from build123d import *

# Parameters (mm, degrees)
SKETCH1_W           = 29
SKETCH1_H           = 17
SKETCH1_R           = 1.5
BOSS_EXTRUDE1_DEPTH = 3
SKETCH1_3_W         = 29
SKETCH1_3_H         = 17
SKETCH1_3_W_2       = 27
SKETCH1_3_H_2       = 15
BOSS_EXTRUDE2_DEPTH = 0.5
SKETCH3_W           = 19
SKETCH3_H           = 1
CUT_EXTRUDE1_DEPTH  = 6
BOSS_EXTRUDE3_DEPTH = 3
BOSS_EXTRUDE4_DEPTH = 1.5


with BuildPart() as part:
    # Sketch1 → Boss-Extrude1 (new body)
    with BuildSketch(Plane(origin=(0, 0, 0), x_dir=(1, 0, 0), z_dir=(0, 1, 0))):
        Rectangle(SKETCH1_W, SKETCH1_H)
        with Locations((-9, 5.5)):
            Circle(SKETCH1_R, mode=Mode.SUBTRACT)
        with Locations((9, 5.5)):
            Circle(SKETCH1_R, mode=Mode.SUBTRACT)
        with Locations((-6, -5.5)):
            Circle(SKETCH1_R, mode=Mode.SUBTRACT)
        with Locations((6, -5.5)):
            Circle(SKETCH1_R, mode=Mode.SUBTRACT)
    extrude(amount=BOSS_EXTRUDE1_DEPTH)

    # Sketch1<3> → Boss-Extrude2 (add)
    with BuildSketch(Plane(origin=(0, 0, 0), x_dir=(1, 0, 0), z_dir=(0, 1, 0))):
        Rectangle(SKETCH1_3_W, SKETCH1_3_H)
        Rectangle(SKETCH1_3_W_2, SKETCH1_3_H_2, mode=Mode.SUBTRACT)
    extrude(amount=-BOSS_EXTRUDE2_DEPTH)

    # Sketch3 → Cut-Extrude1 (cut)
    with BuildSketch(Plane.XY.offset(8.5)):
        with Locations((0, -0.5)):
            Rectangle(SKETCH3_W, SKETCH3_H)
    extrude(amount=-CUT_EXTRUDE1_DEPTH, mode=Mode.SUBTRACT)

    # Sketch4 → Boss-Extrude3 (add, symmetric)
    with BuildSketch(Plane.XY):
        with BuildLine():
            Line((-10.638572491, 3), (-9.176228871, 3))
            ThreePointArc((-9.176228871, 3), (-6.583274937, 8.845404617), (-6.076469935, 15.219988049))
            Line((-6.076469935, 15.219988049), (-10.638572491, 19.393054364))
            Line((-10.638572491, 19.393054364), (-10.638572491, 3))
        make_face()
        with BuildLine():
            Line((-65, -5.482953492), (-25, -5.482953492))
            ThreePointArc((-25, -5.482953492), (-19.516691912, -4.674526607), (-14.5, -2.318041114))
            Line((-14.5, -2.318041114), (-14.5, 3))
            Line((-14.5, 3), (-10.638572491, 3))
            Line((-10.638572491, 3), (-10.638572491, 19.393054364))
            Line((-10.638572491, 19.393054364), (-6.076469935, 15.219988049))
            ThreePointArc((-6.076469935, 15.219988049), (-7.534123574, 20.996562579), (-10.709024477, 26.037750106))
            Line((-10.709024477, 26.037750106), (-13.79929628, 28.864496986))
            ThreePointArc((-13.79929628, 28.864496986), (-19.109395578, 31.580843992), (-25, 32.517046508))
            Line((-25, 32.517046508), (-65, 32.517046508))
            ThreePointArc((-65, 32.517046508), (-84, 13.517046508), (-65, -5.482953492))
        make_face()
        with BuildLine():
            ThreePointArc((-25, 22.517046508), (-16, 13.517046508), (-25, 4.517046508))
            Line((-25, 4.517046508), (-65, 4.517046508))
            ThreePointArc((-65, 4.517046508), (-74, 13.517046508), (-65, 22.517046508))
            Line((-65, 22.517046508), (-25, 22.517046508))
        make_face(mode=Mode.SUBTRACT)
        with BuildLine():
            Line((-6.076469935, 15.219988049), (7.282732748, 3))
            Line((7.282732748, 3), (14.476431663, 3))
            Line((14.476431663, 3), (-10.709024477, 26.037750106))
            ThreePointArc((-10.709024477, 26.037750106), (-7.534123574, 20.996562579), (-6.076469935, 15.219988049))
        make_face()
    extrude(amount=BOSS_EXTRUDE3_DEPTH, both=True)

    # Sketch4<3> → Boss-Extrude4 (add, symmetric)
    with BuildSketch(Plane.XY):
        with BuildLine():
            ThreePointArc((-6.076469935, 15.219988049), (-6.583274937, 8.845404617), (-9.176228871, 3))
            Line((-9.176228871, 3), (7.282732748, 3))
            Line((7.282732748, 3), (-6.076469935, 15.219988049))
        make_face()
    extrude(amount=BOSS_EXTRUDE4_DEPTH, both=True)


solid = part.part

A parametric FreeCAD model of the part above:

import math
import FreeCAD as App
import Part
import Sketcher
Q = App.Units.Quantity


def add_polygon(sketch, points):
    """Adds a closed chain of lines whose ends are joined by coincident constraints."""
    first, n = sketch.GeometryCount, len(points)
    for a, b in zip(points, points[1:] + points[:1]):
        sketch.addGeometry(Part.LineSegment(App.Vector(*a, 0), App.Vector(*b, 0)), False)
    for i in range(n):
        sketch.addConstraint(Sketcher.Constraint("Coincident", first + i, 2, first + (i + 1) % n, 1))

doc = App.newDocument("Part")
params = doc.addObject("Spreadsheet::Sheet", "Params")
for row, (alias, value) in enumerate([
    ("sketch1_diameter", "3 mm"),
    ("sketch1_width", "29 mm"),
    ("sketch1_height", "17 mm"),
    ("pad1_length", "3 mm"),
    ("sketch2_width", "29 mm"),
    ("sketch2_width2", "27 mm"),
    ("sketch2_height", "17 mm"),
    ("sketch2_height2", "15 mm"),
    ("pad2_length", "0.5 mm"),
    ("sketch3_width", "19 mm"),
    ("sketch3_height", "1 mm"),
    ("pocket1_length", "6 mm"),
    ("sketch4_radius", "19 mm"),
    ("sketch4_radius2", "9 mm"),
    ("sketch4_width", "40 mm"),
    ("pad3_length", "6 mm"),
    ("sketch5_radius", "19 mm"),
    ("pad4_length", "3 mm"),
], start=1):
    params.set(f"A{row}", alias)
    params.set(f"B{row}", "=" + value)
    params.setAlias(f"B{row}", alias)

body = doc.addObject("PartDesign::Body", "Body")

# Sketch on XZ plane
sketch1 = doc.addObject("Sketcher::SketchObject", "Sketch")
body.addObject(sketch1)
sketch1.AttachmentSupport = (doc.XZ_Plane, [""])
sketch1.MapMode = "FlatFace"
add_polygon(sketch1, [(-14.5, -8.5), (-14.5, 8.5), (14.5, 8.5), (14.5, -8.5)])  # lines 0-3
sketch1.addGeometry(Part.Circle(App.Vector(-6, 5.5, 0), App.Vector(0, 0, 1), 1.5), False)  # 4
sketch1.addGeometry(Part.Circle(App.Vector(6, 5.5, 0), App.Vector(0, 0, 1), 1.5), False)  # 5
sketch1.addGeometry(Part.Circle(App.Vector(-9, -5.5, 0), App.Vector(0, 0, 1), 1.5), False)  # 6
sketch1.addGeometry(Part.Circle(App.Vector(9, -5.5, 0), App.Vector(0, 0, 1), 1.5), False)  # 7
sketch1.addConstraint([
    Sketcher.Constraint("Vertical", 0),
    Sketcher.Constraint("Horizontal", 1),
    Sketcher.Constraint("Vertical", 2),
    Sketcher.Constraint("Horizontal", 3),
    Sketcher.Constraint("Equal", 4, 5),
    Sketcher.Constraint("Equal", 5, 6),
    Sketcher.Constraint("Equal", 6, 7),
    Sketcher.Constraint("Symmetric", 0, 2, 2, 2, -1, 1),
    Sketcher.Constraint("Symmetric", 4, 3, 5, 3, -2),
    Sketcher.Constraint("Symmetric", 6, 3, 7, 3, -2),
    Sketcher.Constraint("Diameter", 4, Q("3 mm")),
    Sketcher.Constraint("DistanceX", 1, 1, 1, 2, Q("29 mm")),
    Sketcher.Constraint("DistanceY", 0, 1, 0, 2, Q("17 mm")),
    Sketcher.Constraint("DistanceX", 4, 3, -1, 1, Q("6 mm")),
    Sketcher.Constraint("DistanceX", 6, 3, -1, 1, Q("9 mm")),
    Sketcher.Constraint("DistanceY", 6, 3, 4, 3, Q("11 mm")),
    Sketcher.Constraint("DistanceY", 4, 3, 0, 2, Q("3 mm")),
])
sketch1.setExpression("Constraints[14]", "Params.sketch1_diameter")
sketch1.setExpression("Constraints[15]", "Params.sketch1_width")
sketch1.setExpression("Constraints[16]", "Params.sketch1_height")
pad1 = doc.addObject("PartDesign::Pad", "Pad")
body.addObject(pad1)
pad1.Profile = sketch1
pad1.setExpression("Length", "Params.pad1_length")
pad1.Reversed = True

# Sketch on XZ plane
sketch2 = doc.addObject("Sketcher::SketchObject", "Sketch001")
body.addObject(sketch2)
sketch2.AttachmentSupport = (doc.XZ_Plane, [""])
sketch2.MapMode = "FlatFace"
add_polygon(sketch2, [(-14.5, -8.5), (-14.5, 8.5), (14.5, 8.5), (14.5, -8.5)])  # lines 0-3
add_polygon(sketch2, [(13.5, 7.5), (-13.5, 7.5), (-13.5, -7.5), (13.5, -7.5)])  # lines 4-7
sketch2.addConstraint([
    Sketcher.Constraint("Vertical", 0),
    Sketcher.Constraint("Horizontal", 1),
    Sketcher.Constraint("Vertical", 2),
    Sketcher.Constraint("Horizontal", 3),
    Sketcher.Constraint("Horizontal", 4),
    Sketcher.Constraint("Vertical", 5),
    Sketcher.Constraint("Horizontal", 6),
    Sketcher.Constraint("Vertical", 7),
    Sketcher.Constraint("Symmetric", 0, 2, 2, 2, -1, 1),
    Sketcher.Constraint("Symmetric", 4, 2, 6, 2, -1, 1),
    Sketcher.Constraint("DistanceX", 1, 1, 1, 2, Q("29 mm")),
    Sketcher.Constraint("DistanceX", 4, 2, 4, 1, Q("27 mm")),
    Sketcher.Constraint("DistanceY", 0, 1, 0, 2, Q("17 mm")),
    Sketcher.Constraint("DistanceY", 5, 2, 5, 1, Q("15 mm")),
])
sketch2.setExpression("Constraints[18]", "Params.sketch2_width")
sketch2.setExpression("Constraints[19]", "Params.sketch2_width2")
sketch2.setExpression("Constraints[20]", "Params.sketch2_height")
sketch2.setExpression("Constraints[21]", "Params.sketch2_height2")
pad2 = doc.addObject("PartDesign::Pad", "Pad001")
body.addObject(pad2)
pad2.Profile = sketch2
pad2.setExpression("Length", "Params.pad2_length")

# Sketch on XY plane
sketch3 = doc.addObject("Sketcher::SketchObject", "Sketch002")
body.addObject(sketch3)
sketch3.AttachmentSupport = (doc.XY_Plane, [""])
sketch3.MapMode = "FlatFace"
sketch3.AttachmentOffset = App.Placement(App.Vector(0, 0, 8.5), App.Rotation())
add_polygon(sketch3, [(-9.5, 0), (-9.5, -1), (9.5, -1), (9.5, 0)])  # lines 0-3
sketch3.addConstraint([
    Sketcher.Constraint("Vertical", 0),
    Sketcher.Constraint("Horizontal", 1),
    Sketcher.Constraint("Vertical", 2),
    Sketcher.Constraint("Horizontal", 3),
    Sketcher.Constraint("Symmetric", 2, 2, 3, 2, -1, 1),
    Sketcher.Constraint("DistanceX", 1, 1, 1, 2, Q("19 mm")),
    Sketcher.Constraint("DistanceY", 0, 2, 0, 1, Q("1 mm")),
])
sketch3.setExpression("Constraints[9]", "Params.sketch3_width")
sketch3.setExpression("Constraints[10]", "Params.sketch3_height")
pocket1 = doc.addObject("PartDesign::Pocket", "Pocket")
body.addObject(pocket1)
pocket1.Profile = sketch3
pocket1.setExpression("Length", "Params.pocket1_length")

# Sketch on XY plane
sketch4 = doc.addObject("Sketcher::SketchObject", "Sketch003")
body.addObject(sketch4)
sketch4.AttachmentSupport = (doc.XY_Plane, [""])
sketch4.MapMode = "FlatFace"
sketch4.addGeometry([
    Part.ArcOfCircle(Part.Circle(App.Vector(-25, 13.517047, 0), App.Vector(0, 0, 1), 19), math.radians(-33.609439), math.radians(5.142235)),  # 0
    Part.LineSegment(App.Vector(-6.07647, 15.219988, 0), App.Vector(7.282733, 3, 0)),  # 1
    Part.LineSegment(App.Vector(7.282733, 3, 0), App.Vector(14.476432, 3, 0)),  # 2
    Part.LineSegment(App.Vector(14.476432, 3, 0), App.Vector(-10.709024, 26.03775, 0)),  # 3
    Part.LineSegment(App.Vector(-10.709024, 26.03775, 0), App.Vector(-13.799296, 28.864497, 0)),  # 4
    Part.ArcOfCircle(Part.Circle(App.Vector(-25, 13.517047, 0), App.Vector(0, 0, 1), 19), math.radians(53.877705), math.radians(90)),  # 5
    Part.LineSegment(App.Vector(-25, 32.517047, 0), App.Vector(-65, 32.517047, 0)),  # 6
    Part.ArcOfCircle(Part.Circle(App.Vector(-65, 13.517047, 0), App.Vector(0, 0, 1), 19), math.radians(90), math.radians(270)),  # 7
    Part.LineSegment(App.Vector(-65, -5.482953, 0), App.Vector(-25, -5.482953, 0)),  # 8
    Part.ArcOfCircle(Part.Circle(App.Vector(-25, 13.517047, 0), App.Vector(0, 0, 1), 19), math.radians(-90), math.radians(-56.452262)),  # 9
    Part.LineSegment(App.Vector(-14.5, -2.318041, 0), App.Vector(-14.5, 3, 0)),  # 10
    Part.LineSegment(App.Vector(-14.5, 3, 0), App.Vector(-9.176229, 3, 0)),  # 11
    Part.LineSegment(App.Vector(-65, 22.517047, 0), App.Vector(-25, 22.517047, 0)),  # 12
    Part.ArcOfCircle(Part.Circle(App.Vector(-25, 13.517047, 0), App.Vector(0, 0, 1), 9), math.radians(-90), math.radians(90)),  # 13
    Part.LineSegment(App.Vector(-25, 4.517047, 0), App.Vector(-65, 4.517047, 0)),  # 14
    Part.ArcOfCircle(Part.Circle(App.Vector(-65, 13.517047, 0), App.Vector(0, 0, 1), 9), math.radians(90), math.radians(270)),  # 15
], False)
sketch4.addConstraint([
    Sketcher.Constraint("Coincident", 0, 2, 1, 1),
    Sketcher.Constraint("Coincident", 1, 2, 2, 1),
    Sketcher.Constraint("Coincident", 2, 2, 3, 1),
    Sketcher.Constraint("Coincident", 3, 2, 4, 1),
    Sketcher.Constraint("Coincident", 4, 2, 5, 1),
    Sketcher.Constraint("Tangent", 5, 2, 6, 1),
    Sketcher.Constraint("Tangent", 6, 2, 7, 1),
    Sketcher.Constraint("Tangent", 7, 2, 8, 1),
    Sketcher.Constraint("Tangent", 8, 2, 9, 1),
    Sketcher.Constraint("Coincident", 9, 2, 10, 1),
    Sketcher.Constraint("Coincident", 10, 2, 11, 1),
    Sketcher.Constraint("Coincident", 11, 2, 0, 1),
    Sketcher.Constraint("Tangent", 12, 2, 13, 2),
    Sketcher.Constraint("Tangent", 13, 1, 14, 1),
    Sketcher.Constraint("Tangent", 14, 2, 15, 2),
    Sketcher.Constraint("Tangent", 15, 1, 12, 1),
    Sketcher.Constraint("Horizontal", 2),
    Sketcher.Constraint("Horizontal", 6),
    Sketcher.Constraint("Horizontal", 8),
    Sketcher.Constraint("Vertical", 10),
    Sketcher.Constraint("Horizontal", 11),
    Sketcher.Constraint("Horizontal", 12),
    Sketcher.Constraint("Horizontal", 14),
    Sketcher.Constraint("Coincident", 5, 3, 0, 3),
    Sketcher.Constraint("Coincident", 9, 3, 0, 3),
    Sketcher.Constraint("Coincident", 13, 3, 0, 3),
    Sketcher.Constraint("Coincident", 15, 3, 7, 3),
    Sketcher.Constraint("Equal", 0, 5),
    Sketcher.Constraint("Parallel", 1, 3),
    Sketcher.Constraint("Parallel", 3, 4),
    Sketcher.Constraint("Horizontal", 2, 2, 10, 2),
    Sketcher.Constraint("Radius", 0, Q("19 mm")),
    Sketcher.Constraint("Radius", 13, Q("9 mm")),
    Sketcher.Constraint("DistanceX", 6, 2, 6, 1, Q("40 mm")),
    Sketcher.Constraint("DistanceX", 0, 3, -1, 1, Q("25 mm")),
    Sketcher.Constraint("DistanceY", -1, 1, 1, 2, Q("3 mm")),
    Sketcher.Constraint("DistanceX", 9, 2, -1, 1, Q("14.5 mm")),
    Sketcher.Constraint("DistanceX", 2, 1, 2, 2, Q("7.193699 mm")),
    Sketcher.Constraint("DistanceX", 11, 1, 11, 2, Q("5.323771 mm")),
    Sketcher.Constraint("DistanceX", 0, 2, 2, 2, Q("20.552902 mm")),
    Sketcher.Constraint("Distance", 1, Q("18.105149 mm")),
    Sketcher.Constraint("Distance", 4, Q("4.188111 mm")),
])
sketch4.setExpression("Constraints[31]", "Params.sketch4_radius")
sketch4.setExpression("Constraints[32]", "Params.sketch4_radius2")
sketch4.setExpression("Constraints[33]", "Params.sketch4_width")
pad3 = doc.addObject("PartDesign::Pad", "Pad002")
body.addObject(pad3)
pad3.Profile = sketch4
pad3.setExpression("Length", "Params.pad3_length")
pad3.Midplane = True

# Sketch on XY plane
sketch5 = doc.addObject("Sketcher::SketchObject", "Sketch004")
body.addObject(sketch5)
sketch5.AttachmentSupport = (doc.XY_Plane, [""])
sketch5.MapMode = "FlatFace"
sketch5.addGeometry([
    Part.ArcOfCircle(Part.Circle(App.Vector(-25, 13.517047, 0), App.Vector(0, 0, 1), 19), math.radians(-33.609439), math.radians(5.142235)),
    Part.LineSegment(App.Vector(-9.176229, 3, 0), App.Vector(7.282733, 3, 0)),
    Part.LineSegment(App.Vector(7.282733, 3, 0), App.Vector(-6.07647, 15.219988, 0)),
], False)
sketch5.addConstraint([
    Sketcher.Constraint("Coincident", 0, 1, 1, 1),
    Sketcher.Constraint("Coincident", 1, 2, 2, 1),
    Sketcher.Constraint("Coincident", 2, 2, 0, 2),
    Sketcher.Constraint("Horizontal", 1),
    Sketcher.Constraint("Radius", 0, Q("19 mm")),
    Sketcher.Constraint("DistanceX", 0, 3, -1, 1, Q("25 mm")),
    Sketcher.Constraint("DistanceY", -1, 1, 0, 1, Q("3 mm")),
    Sketcher.Constraint("DistanceX", 1, 1, 1, 2, Q("16.458962 mm")),
    Sketcher.Constraint("Distance", 2, Q("18.105149 mm")),
    Sketcher.Constraint("DistanceX", 0, 1, -1, 1, Q("9.176229 mm")),
])
sketch5.setExpression("Constraints[4]", "Params.sketch5_radius")
pad4 = doc.addObject("PartDesign::Pad", "Pad003")
body.addObject(pad4)
pad4.Profile = sketch5
pad4.setExpression("Length", "Params.pad4_length")
pad4.Midplane = True

doc.recompute()
